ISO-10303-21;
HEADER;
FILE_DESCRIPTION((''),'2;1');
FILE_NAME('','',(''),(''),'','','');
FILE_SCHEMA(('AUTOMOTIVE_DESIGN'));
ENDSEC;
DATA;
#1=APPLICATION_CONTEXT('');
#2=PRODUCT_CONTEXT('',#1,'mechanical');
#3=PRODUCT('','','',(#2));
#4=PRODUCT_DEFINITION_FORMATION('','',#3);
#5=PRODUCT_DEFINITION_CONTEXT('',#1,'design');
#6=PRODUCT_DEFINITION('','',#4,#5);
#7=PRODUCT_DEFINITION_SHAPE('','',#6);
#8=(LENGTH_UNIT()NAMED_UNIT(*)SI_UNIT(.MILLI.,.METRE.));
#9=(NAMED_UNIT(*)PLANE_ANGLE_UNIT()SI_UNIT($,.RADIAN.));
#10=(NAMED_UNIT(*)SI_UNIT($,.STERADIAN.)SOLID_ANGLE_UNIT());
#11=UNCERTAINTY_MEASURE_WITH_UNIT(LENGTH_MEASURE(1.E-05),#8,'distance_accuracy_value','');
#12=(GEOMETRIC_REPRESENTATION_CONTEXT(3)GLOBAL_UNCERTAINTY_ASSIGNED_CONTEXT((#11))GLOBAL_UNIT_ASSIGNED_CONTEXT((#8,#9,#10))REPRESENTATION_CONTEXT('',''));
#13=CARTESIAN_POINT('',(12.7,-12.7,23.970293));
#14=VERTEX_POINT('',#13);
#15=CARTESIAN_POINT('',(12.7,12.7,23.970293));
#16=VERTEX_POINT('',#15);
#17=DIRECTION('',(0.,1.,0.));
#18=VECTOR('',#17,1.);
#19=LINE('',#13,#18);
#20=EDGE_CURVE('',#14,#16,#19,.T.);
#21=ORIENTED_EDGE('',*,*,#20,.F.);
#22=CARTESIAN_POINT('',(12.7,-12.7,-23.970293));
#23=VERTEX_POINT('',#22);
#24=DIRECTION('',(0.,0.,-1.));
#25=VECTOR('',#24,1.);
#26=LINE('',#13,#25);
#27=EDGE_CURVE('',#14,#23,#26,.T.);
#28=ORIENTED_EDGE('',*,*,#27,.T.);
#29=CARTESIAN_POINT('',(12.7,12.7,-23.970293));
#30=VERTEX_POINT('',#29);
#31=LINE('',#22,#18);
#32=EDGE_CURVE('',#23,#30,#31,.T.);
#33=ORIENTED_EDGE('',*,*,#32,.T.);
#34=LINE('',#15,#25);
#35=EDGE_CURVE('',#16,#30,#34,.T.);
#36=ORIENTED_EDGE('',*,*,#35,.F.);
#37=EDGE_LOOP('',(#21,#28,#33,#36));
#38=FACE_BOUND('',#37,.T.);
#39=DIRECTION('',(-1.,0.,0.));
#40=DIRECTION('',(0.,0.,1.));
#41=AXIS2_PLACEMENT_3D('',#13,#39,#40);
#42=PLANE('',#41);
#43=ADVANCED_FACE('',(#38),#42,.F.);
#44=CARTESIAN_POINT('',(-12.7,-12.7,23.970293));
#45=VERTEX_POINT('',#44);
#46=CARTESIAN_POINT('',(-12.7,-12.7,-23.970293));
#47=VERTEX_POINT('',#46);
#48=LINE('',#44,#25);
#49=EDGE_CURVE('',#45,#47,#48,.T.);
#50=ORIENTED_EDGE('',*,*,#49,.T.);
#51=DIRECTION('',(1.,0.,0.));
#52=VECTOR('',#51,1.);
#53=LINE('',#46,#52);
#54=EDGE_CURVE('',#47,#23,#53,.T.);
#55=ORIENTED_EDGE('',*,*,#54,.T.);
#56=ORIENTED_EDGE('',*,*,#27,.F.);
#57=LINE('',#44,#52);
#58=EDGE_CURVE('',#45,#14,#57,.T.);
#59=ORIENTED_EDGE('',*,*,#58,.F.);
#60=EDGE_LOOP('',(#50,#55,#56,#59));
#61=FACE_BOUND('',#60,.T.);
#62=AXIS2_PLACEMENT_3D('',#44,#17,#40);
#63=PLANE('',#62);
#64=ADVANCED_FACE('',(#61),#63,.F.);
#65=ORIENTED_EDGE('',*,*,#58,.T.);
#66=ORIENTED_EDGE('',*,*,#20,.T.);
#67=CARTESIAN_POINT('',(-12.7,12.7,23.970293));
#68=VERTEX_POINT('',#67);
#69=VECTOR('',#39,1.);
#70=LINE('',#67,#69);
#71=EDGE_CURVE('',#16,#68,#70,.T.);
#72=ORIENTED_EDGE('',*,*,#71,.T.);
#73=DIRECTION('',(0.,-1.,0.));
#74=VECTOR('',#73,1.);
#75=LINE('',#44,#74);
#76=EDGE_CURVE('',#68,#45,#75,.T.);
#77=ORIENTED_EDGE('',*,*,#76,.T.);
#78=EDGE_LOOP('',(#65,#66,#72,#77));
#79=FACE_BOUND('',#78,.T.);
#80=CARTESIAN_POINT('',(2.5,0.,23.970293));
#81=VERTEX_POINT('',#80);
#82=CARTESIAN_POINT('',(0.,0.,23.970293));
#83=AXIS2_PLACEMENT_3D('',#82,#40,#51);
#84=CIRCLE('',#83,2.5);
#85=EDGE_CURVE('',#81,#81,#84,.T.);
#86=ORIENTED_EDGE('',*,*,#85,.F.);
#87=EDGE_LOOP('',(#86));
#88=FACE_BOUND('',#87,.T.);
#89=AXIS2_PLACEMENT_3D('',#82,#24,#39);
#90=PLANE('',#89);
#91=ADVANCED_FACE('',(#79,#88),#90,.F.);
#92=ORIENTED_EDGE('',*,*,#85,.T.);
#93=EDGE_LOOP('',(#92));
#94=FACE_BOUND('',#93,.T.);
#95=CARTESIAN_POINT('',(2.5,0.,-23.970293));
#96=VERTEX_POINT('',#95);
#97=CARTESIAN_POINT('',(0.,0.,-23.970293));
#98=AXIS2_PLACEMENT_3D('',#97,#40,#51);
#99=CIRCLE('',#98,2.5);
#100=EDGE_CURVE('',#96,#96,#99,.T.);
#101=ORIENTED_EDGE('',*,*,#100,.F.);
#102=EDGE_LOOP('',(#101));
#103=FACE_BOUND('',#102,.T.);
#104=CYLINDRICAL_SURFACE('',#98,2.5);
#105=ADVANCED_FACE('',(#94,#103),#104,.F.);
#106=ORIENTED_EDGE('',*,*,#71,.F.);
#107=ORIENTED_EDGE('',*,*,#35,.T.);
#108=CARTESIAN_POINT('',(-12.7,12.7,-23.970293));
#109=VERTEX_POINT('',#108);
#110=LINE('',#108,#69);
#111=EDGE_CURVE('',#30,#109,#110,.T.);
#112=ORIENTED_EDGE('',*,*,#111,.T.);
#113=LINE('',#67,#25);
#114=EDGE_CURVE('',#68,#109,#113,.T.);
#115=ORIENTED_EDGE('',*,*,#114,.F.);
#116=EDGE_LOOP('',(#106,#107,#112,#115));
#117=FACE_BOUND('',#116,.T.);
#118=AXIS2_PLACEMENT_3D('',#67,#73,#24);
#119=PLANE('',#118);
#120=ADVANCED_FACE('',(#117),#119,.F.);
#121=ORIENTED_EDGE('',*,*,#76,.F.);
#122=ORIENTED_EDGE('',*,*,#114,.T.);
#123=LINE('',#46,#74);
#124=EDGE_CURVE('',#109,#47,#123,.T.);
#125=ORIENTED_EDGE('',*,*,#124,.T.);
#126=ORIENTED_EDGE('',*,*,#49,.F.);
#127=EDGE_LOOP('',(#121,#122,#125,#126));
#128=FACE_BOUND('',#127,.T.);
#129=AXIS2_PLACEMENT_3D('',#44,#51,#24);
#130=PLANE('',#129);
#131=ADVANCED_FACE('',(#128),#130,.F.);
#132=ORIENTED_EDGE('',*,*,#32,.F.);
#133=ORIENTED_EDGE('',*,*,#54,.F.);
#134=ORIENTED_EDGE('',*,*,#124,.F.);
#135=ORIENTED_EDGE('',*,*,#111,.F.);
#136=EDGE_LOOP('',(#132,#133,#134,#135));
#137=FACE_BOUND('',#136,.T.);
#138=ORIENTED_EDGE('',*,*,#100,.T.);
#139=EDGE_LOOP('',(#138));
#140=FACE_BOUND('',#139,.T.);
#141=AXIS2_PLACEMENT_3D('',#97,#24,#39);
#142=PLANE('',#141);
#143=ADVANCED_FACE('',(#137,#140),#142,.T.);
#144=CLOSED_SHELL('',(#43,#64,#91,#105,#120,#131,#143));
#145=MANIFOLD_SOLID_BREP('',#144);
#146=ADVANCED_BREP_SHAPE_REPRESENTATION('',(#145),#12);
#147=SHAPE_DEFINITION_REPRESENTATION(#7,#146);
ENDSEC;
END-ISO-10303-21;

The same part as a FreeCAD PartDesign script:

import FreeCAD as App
import Part
import Sketcher


def add_polygon(sketch, points):
    """Adds a closed chain of lines whose ends are joined by coincident constraints."""
    first, n = sketch.GeometryCount, len(points)
    for a, b in zip(points, points[1:] + points[:1]):
        sketch.addGeometry(Part.LineSegment(App.Vector(*a, 0), App.Vector(*b, 0)), False)
    for i in range(n):
        sketch.addConstraint(Sketcher.Constraint("Coincident", first + i, 2, first + (i + 1) % n, 1))

doc = App.newDocument("Part")
body = doc.addObject("PartDesign::Body", "Body")

# Sketch on XY plane
sketch1 = body.newObject("Sketcher::SketchObject", "Sketch")
sketch1.AttachmentSupport = (doc.getObject("XY_Plane"), [""])
sketch1.MapMode = "FlatFace"
add_polygon(sketch1, [(-13, 13), (-13, -13), (13, -13), (13, 13)])  # lines 0-3
sketch1.addConstraint(Sketcher.Constraint("Vertical", 0))
sketch1.addConstraint(Sketcher.Constraint("Horizontal", 1))
sketch1.addConstraint(Sketcher.Constraint("Vertical", 2))
sketch1.addConstraint(Sketcher.Constraint("Horizontal", 3))
sketch1.addConstraint(Sketcher.Constraint("Symmetric", 0, 2, 2, 2, -1, 1))
sketch1.addConstraint(Sketcher.Constraint("Equal", 3, 0))
sketch1.addConstraint(Sketcher.Constraint("DistanceX", 1, 1, 1, 2, 25.4))
pad1 = body.newObject("PartDesign::Pad", "Pad")
pad1.Profile = sketch1
pad1.Length = 47.940586
pad1.Midplane = True

# Sketch on XY plane
sketch2 = body.newObject("Sketcher::SketchObject", "Sketch001")
sketch2.AttachmentSupport = (doc.getObject("XY_Plane"), [""])
sketch2.MapMode = "FlatFace"
sketch2.AttachmentOffset = App.Placement(App.Vector(0, 0, 23.970293), App.Rotation())
sketch2.addGeometry(Part.Circle(App.Vector(0, 0, 0), App.Vector(0, 0, 1), 2.5), False)
sketch2.addConstraint(Sketcher.Constraint("Coincident", 0, 3, -1, 1))
sketch2.addConstraint(Sketcher.Constraint("Diameter", 0, 5.0))
pocket1 = body.newObject("PartDesign::Pocket", "Pocket")
pocket1.Profile = sketch2
pocket1.Type = "ThroughAll"

doc.recompute()
